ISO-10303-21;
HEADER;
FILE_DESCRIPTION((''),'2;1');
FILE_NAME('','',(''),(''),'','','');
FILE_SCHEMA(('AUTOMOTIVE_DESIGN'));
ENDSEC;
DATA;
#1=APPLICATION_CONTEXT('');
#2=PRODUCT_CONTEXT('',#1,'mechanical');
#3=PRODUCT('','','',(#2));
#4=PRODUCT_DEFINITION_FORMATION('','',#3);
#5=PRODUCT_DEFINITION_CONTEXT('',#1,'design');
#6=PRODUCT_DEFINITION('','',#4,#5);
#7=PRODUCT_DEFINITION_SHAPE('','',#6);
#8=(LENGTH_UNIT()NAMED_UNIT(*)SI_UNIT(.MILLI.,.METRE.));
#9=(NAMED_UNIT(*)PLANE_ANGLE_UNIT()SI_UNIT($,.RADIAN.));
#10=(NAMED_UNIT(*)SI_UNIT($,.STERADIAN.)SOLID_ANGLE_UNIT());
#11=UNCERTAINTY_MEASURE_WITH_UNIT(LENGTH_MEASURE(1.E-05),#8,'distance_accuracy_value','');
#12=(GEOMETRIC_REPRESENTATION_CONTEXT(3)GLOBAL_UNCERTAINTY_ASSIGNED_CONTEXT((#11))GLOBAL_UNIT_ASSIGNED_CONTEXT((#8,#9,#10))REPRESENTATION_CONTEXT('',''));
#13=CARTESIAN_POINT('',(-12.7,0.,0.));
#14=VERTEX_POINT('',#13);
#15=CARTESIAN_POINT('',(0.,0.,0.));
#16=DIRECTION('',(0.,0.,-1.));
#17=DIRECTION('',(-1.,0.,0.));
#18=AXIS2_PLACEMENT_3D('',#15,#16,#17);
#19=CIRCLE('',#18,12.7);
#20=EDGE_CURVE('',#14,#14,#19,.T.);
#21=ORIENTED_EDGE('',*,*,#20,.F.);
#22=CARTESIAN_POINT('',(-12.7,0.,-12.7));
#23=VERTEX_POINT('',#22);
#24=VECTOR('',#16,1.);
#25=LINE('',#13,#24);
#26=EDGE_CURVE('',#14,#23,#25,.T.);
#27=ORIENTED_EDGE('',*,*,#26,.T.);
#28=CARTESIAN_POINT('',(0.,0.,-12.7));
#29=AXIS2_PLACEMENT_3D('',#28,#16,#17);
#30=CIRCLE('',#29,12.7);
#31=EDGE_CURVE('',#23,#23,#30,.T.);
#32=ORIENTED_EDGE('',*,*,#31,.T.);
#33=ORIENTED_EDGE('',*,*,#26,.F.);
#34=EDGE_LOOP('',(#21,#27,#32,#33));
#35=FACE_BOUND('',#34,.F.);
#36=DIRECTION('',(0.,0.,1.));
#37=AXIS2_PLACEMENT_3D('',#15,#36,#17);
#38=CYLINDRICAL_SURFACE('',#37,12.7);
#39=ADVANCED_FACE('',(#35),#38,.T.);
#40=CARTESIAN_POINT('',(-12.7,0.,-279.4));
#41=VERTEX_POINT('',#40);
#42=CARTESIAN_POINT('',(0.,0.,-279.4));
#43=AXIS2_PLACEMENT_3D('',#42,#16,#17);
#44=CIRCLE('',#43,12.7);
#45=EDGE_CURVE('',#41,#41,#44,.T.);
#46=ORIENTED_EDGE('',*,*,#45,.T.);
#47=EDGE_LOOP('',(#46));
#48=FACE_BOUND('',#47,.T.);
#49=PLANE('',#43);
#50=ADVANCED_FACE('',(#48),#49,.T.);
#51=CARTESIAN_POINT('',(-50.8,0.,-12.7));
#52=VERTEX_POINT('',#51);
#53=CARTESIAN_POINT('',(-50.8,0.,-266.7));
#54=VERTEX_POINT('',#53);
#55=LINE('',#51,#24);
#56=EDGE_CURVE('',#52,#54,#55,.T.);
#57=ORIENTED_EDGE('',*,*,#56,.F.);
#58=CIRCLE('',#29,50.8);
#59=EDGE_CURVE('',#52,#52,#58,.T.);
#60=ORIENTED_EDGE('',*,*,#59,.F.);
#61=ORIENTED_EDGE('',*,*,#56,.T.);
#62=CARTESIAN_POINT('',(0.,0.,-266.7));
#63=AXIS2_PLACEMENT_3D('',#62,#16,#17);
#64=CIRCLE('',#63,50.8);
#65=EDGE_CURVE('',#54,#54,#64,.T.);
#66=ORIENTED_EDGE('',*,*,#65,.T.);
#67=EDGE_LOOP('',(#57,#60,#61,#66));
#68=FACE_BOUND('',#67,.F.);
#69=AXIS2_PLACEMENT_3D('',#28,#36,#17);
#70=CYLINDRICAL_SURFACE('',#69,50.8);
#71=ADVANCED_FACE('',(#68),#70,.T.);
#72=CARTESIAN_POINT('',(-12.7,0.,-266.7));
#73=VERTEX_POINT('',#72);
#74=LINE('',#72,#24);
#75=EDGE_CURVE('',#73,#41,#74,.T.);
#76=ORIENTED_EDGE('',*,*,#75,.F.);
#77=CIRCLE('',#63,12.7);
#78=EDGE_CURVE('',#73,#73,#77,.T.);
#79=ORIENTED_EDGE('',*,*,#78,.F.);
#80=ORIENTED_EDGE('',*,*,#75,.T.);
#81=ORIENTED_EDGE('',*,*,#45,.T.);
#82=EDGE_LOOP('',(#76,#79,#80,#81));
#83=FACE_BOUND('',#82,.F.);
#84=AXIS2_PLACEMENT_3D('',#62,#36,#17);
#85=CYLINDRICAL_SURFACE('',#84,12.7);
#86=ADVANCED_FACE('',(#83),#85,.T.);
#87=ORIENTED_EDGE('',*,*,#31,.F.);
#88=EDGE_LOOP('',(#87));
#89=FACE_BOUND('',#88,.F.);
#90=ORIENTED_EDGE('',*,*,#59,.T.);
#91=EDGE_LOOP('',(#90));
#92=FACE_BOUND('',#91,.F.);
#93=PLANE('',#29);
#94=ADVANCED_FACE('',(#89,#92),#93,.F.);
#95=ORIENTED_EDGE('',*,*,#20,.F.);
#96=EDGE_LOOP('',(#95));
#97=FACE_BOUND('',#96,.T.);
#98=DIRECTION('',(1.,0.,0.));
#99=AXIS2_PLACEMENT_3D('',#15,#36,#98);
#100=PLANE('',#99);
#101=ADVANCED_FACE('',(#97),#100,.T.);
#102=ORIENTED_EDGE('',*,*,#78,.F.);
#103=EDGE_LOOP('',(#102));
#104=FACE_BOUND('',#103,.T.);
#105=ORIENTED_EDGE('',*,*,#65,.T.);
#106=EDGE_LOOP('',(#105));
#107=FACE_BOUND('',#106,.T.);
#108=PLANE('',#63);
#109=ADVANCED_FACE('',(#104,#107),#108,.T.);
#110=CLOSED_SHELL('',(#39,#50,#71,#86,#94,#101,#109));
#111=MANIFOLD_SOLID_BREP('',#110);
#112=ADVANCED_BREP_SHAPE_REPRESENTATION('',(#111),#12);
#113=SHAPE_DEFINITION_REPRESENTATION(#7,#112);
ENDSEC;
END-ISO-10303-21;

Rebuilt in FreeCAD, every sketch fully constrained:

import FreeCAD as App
import Part
import Sketcher

V = App.Vector
Q = App.Units.Quantity

doc = App.newDocument("Part")
body = doc.addObject("PartDesign::Body", "Body")

sketch1 = doc.addObject("Sketcher::SketchObject", "Sketch")
body.addObject(sketch1)
sketch1.AttachmentSupport = (doc.XY_Plane, [""])
sketch1.MapMode = "FlatFace"
sketch1.addGeometry(Part.Circle(V(0, 0, 0), V(0, 0, 1), 31.75), False)
sketch1.addConstraint(Sketcher.Constraint("Coincident", 0, 3, -1, 1))
sketch1.addConstraint(Sketcher.Constraint("Diameter", 0, Q("2.5 in")))
pad1 = doc.addObject("PartDesign::Pad", "Pad")
body.addObject(pad1)
pad1.Profile = sketch1
pad1.Length = Q("3.25 in")

sketch2 = doc.addObject("Sketcher::SketchObject", "Sketch001")
body.addObject(sketch2)
sketch2.AttachmentSupport = (doc.XY_Plane, [""])
sketch2.MapMode = "FlatFace"
sketch2.AttachmentOffset = App.Placement(V(0, 0, 3.25 * 25.4), App.Rotation())
sketch2.addGeometry(Part.Circle(V(0, 0, 0), V(0, 0, 1), 14.859), False)
sketch2.addConstraint(Sketcher.Constraint("Coincident", 0, 3, -1, 1))
sketch2.addConstraint(Sketcher.Constraint("Diameter", 0, Q("1.17 in")))
pad2 = doc.addObject("PartDesign::Pad", "Pad001")
body.addObject(pad2)
pad2.Profile = sketch2
pad2.Length = Q("0.25 in")

sketch3 = doc.addObject("Sketcher::SketchObject", "Sketch002")
body.addObject(sketch3)
sketch3.AttachmentSupport = (doc.XY_Plane, [""])
sketch3.MapMode = "FlatFace"
sketch3.addGeometry(Part.Circle(V(0, 0, 0), V(0, 0, 1), 12.7), False)
sketch3.addConstraint(Sketcher.Constraint("Coincident", 0, 3, -1, 1))
sketch3.addConstraint(Sketcher.Constraint("Diameter", 0, Q("1 in")))
pad3 = doc.addObject("PartDesign::Pad", "Pad002")
body.addObject(pad3)
pad3.Profile = sketch3
pad3.Length = Q("0.5 in")
pad3.Reversed = True

sketch4 = doc.addObject("Sketcher::SketchObject", "Sketch003")
body.addObject(sketch4)
sketch4.AttachmentSupport = (doc.XY_Plane, [""])
sketch4.MapMode = "FlatFace"
sketch4.AttachmentOffset = App.Placement(V(0, 0, -0.5 * 25.4), App.Rotation())
sketch4.addGeometry(Part.Circle(V(0, 0, 0), V(0, 0, 1), 50.8), False)
sketch4.addConstraint(Sketcher.Constraint("Coincident", 0, 3, -1, 1))
sketch4.addConstraint(Sketcher.Constraint("Diameter", 0, Q("4 in")))
pad4 = doc.addObject("PartDesign::Pad", "Pad003")
body.addObject(pad4)
pad4.Profile = sketch4
pad4.Length = Q("10 in")
pad4.Reversed = True

sketch5 = doc.addObject("Sketcher::SketchObject", "Sketch004")
body.addObject(sketch5)
sketch5.AttachmentSupport = (doc.XY_Plane, [""])
sketch5.MapMode = "FlatFace"
sketch5.AttachmentOffset = App.Placement(V(0, 0, -10.5 * 25.4), App.Rotation())
sketch5.addGeometry(Part.Circle(V(0, 0, 0), V(0, 0, 1), 12.7), False)
sketch5.addConstraint(Sketcher.Constraint("Coincident", 0, 3, -1, 1))
sketch5.addConstraint(Sketcher.Constraint("Diameter", 0, Q("1 in")))
pad5 = doc.addObject("PartDesign::Pad", "Pad004")
body.addObject(pad5)
pad5.Profile = sketch5
pad5.Length = Q("0.5 in")
pad5.Reversed = True

sketch6 = doc.addObject("Sketcher::SketchObject", "Sketch005")
body.addObject(sketch6)
sketch6.AttachmentSupport = (doc.XY_Plane, [""])
sketch6.MapMode = "FlatFace"
sketch6.AttachmentOffset = App.Placement(V(0, 0, 3.5 * 25.4), App.Rotation())
sketch6.addGeometry(Part.Circle(V(0, 0, 0), V(0, 0, 1), 117.3057), False)
sketch6.addConstraint(Sketcher.Constraint("Coincident", 0, 3, -1, 1))
sketch6.addConstraint(Sketcher.Constraint("Diameter", 0, 234.6114))
pocket1 = doc.addObject("PartDesign::Pocket", "Pocket")
body.addObject(pocket1)
pocket1.Profile = sketch6
pocket1.Length = Q("3.5 in")

doc.recompute()
